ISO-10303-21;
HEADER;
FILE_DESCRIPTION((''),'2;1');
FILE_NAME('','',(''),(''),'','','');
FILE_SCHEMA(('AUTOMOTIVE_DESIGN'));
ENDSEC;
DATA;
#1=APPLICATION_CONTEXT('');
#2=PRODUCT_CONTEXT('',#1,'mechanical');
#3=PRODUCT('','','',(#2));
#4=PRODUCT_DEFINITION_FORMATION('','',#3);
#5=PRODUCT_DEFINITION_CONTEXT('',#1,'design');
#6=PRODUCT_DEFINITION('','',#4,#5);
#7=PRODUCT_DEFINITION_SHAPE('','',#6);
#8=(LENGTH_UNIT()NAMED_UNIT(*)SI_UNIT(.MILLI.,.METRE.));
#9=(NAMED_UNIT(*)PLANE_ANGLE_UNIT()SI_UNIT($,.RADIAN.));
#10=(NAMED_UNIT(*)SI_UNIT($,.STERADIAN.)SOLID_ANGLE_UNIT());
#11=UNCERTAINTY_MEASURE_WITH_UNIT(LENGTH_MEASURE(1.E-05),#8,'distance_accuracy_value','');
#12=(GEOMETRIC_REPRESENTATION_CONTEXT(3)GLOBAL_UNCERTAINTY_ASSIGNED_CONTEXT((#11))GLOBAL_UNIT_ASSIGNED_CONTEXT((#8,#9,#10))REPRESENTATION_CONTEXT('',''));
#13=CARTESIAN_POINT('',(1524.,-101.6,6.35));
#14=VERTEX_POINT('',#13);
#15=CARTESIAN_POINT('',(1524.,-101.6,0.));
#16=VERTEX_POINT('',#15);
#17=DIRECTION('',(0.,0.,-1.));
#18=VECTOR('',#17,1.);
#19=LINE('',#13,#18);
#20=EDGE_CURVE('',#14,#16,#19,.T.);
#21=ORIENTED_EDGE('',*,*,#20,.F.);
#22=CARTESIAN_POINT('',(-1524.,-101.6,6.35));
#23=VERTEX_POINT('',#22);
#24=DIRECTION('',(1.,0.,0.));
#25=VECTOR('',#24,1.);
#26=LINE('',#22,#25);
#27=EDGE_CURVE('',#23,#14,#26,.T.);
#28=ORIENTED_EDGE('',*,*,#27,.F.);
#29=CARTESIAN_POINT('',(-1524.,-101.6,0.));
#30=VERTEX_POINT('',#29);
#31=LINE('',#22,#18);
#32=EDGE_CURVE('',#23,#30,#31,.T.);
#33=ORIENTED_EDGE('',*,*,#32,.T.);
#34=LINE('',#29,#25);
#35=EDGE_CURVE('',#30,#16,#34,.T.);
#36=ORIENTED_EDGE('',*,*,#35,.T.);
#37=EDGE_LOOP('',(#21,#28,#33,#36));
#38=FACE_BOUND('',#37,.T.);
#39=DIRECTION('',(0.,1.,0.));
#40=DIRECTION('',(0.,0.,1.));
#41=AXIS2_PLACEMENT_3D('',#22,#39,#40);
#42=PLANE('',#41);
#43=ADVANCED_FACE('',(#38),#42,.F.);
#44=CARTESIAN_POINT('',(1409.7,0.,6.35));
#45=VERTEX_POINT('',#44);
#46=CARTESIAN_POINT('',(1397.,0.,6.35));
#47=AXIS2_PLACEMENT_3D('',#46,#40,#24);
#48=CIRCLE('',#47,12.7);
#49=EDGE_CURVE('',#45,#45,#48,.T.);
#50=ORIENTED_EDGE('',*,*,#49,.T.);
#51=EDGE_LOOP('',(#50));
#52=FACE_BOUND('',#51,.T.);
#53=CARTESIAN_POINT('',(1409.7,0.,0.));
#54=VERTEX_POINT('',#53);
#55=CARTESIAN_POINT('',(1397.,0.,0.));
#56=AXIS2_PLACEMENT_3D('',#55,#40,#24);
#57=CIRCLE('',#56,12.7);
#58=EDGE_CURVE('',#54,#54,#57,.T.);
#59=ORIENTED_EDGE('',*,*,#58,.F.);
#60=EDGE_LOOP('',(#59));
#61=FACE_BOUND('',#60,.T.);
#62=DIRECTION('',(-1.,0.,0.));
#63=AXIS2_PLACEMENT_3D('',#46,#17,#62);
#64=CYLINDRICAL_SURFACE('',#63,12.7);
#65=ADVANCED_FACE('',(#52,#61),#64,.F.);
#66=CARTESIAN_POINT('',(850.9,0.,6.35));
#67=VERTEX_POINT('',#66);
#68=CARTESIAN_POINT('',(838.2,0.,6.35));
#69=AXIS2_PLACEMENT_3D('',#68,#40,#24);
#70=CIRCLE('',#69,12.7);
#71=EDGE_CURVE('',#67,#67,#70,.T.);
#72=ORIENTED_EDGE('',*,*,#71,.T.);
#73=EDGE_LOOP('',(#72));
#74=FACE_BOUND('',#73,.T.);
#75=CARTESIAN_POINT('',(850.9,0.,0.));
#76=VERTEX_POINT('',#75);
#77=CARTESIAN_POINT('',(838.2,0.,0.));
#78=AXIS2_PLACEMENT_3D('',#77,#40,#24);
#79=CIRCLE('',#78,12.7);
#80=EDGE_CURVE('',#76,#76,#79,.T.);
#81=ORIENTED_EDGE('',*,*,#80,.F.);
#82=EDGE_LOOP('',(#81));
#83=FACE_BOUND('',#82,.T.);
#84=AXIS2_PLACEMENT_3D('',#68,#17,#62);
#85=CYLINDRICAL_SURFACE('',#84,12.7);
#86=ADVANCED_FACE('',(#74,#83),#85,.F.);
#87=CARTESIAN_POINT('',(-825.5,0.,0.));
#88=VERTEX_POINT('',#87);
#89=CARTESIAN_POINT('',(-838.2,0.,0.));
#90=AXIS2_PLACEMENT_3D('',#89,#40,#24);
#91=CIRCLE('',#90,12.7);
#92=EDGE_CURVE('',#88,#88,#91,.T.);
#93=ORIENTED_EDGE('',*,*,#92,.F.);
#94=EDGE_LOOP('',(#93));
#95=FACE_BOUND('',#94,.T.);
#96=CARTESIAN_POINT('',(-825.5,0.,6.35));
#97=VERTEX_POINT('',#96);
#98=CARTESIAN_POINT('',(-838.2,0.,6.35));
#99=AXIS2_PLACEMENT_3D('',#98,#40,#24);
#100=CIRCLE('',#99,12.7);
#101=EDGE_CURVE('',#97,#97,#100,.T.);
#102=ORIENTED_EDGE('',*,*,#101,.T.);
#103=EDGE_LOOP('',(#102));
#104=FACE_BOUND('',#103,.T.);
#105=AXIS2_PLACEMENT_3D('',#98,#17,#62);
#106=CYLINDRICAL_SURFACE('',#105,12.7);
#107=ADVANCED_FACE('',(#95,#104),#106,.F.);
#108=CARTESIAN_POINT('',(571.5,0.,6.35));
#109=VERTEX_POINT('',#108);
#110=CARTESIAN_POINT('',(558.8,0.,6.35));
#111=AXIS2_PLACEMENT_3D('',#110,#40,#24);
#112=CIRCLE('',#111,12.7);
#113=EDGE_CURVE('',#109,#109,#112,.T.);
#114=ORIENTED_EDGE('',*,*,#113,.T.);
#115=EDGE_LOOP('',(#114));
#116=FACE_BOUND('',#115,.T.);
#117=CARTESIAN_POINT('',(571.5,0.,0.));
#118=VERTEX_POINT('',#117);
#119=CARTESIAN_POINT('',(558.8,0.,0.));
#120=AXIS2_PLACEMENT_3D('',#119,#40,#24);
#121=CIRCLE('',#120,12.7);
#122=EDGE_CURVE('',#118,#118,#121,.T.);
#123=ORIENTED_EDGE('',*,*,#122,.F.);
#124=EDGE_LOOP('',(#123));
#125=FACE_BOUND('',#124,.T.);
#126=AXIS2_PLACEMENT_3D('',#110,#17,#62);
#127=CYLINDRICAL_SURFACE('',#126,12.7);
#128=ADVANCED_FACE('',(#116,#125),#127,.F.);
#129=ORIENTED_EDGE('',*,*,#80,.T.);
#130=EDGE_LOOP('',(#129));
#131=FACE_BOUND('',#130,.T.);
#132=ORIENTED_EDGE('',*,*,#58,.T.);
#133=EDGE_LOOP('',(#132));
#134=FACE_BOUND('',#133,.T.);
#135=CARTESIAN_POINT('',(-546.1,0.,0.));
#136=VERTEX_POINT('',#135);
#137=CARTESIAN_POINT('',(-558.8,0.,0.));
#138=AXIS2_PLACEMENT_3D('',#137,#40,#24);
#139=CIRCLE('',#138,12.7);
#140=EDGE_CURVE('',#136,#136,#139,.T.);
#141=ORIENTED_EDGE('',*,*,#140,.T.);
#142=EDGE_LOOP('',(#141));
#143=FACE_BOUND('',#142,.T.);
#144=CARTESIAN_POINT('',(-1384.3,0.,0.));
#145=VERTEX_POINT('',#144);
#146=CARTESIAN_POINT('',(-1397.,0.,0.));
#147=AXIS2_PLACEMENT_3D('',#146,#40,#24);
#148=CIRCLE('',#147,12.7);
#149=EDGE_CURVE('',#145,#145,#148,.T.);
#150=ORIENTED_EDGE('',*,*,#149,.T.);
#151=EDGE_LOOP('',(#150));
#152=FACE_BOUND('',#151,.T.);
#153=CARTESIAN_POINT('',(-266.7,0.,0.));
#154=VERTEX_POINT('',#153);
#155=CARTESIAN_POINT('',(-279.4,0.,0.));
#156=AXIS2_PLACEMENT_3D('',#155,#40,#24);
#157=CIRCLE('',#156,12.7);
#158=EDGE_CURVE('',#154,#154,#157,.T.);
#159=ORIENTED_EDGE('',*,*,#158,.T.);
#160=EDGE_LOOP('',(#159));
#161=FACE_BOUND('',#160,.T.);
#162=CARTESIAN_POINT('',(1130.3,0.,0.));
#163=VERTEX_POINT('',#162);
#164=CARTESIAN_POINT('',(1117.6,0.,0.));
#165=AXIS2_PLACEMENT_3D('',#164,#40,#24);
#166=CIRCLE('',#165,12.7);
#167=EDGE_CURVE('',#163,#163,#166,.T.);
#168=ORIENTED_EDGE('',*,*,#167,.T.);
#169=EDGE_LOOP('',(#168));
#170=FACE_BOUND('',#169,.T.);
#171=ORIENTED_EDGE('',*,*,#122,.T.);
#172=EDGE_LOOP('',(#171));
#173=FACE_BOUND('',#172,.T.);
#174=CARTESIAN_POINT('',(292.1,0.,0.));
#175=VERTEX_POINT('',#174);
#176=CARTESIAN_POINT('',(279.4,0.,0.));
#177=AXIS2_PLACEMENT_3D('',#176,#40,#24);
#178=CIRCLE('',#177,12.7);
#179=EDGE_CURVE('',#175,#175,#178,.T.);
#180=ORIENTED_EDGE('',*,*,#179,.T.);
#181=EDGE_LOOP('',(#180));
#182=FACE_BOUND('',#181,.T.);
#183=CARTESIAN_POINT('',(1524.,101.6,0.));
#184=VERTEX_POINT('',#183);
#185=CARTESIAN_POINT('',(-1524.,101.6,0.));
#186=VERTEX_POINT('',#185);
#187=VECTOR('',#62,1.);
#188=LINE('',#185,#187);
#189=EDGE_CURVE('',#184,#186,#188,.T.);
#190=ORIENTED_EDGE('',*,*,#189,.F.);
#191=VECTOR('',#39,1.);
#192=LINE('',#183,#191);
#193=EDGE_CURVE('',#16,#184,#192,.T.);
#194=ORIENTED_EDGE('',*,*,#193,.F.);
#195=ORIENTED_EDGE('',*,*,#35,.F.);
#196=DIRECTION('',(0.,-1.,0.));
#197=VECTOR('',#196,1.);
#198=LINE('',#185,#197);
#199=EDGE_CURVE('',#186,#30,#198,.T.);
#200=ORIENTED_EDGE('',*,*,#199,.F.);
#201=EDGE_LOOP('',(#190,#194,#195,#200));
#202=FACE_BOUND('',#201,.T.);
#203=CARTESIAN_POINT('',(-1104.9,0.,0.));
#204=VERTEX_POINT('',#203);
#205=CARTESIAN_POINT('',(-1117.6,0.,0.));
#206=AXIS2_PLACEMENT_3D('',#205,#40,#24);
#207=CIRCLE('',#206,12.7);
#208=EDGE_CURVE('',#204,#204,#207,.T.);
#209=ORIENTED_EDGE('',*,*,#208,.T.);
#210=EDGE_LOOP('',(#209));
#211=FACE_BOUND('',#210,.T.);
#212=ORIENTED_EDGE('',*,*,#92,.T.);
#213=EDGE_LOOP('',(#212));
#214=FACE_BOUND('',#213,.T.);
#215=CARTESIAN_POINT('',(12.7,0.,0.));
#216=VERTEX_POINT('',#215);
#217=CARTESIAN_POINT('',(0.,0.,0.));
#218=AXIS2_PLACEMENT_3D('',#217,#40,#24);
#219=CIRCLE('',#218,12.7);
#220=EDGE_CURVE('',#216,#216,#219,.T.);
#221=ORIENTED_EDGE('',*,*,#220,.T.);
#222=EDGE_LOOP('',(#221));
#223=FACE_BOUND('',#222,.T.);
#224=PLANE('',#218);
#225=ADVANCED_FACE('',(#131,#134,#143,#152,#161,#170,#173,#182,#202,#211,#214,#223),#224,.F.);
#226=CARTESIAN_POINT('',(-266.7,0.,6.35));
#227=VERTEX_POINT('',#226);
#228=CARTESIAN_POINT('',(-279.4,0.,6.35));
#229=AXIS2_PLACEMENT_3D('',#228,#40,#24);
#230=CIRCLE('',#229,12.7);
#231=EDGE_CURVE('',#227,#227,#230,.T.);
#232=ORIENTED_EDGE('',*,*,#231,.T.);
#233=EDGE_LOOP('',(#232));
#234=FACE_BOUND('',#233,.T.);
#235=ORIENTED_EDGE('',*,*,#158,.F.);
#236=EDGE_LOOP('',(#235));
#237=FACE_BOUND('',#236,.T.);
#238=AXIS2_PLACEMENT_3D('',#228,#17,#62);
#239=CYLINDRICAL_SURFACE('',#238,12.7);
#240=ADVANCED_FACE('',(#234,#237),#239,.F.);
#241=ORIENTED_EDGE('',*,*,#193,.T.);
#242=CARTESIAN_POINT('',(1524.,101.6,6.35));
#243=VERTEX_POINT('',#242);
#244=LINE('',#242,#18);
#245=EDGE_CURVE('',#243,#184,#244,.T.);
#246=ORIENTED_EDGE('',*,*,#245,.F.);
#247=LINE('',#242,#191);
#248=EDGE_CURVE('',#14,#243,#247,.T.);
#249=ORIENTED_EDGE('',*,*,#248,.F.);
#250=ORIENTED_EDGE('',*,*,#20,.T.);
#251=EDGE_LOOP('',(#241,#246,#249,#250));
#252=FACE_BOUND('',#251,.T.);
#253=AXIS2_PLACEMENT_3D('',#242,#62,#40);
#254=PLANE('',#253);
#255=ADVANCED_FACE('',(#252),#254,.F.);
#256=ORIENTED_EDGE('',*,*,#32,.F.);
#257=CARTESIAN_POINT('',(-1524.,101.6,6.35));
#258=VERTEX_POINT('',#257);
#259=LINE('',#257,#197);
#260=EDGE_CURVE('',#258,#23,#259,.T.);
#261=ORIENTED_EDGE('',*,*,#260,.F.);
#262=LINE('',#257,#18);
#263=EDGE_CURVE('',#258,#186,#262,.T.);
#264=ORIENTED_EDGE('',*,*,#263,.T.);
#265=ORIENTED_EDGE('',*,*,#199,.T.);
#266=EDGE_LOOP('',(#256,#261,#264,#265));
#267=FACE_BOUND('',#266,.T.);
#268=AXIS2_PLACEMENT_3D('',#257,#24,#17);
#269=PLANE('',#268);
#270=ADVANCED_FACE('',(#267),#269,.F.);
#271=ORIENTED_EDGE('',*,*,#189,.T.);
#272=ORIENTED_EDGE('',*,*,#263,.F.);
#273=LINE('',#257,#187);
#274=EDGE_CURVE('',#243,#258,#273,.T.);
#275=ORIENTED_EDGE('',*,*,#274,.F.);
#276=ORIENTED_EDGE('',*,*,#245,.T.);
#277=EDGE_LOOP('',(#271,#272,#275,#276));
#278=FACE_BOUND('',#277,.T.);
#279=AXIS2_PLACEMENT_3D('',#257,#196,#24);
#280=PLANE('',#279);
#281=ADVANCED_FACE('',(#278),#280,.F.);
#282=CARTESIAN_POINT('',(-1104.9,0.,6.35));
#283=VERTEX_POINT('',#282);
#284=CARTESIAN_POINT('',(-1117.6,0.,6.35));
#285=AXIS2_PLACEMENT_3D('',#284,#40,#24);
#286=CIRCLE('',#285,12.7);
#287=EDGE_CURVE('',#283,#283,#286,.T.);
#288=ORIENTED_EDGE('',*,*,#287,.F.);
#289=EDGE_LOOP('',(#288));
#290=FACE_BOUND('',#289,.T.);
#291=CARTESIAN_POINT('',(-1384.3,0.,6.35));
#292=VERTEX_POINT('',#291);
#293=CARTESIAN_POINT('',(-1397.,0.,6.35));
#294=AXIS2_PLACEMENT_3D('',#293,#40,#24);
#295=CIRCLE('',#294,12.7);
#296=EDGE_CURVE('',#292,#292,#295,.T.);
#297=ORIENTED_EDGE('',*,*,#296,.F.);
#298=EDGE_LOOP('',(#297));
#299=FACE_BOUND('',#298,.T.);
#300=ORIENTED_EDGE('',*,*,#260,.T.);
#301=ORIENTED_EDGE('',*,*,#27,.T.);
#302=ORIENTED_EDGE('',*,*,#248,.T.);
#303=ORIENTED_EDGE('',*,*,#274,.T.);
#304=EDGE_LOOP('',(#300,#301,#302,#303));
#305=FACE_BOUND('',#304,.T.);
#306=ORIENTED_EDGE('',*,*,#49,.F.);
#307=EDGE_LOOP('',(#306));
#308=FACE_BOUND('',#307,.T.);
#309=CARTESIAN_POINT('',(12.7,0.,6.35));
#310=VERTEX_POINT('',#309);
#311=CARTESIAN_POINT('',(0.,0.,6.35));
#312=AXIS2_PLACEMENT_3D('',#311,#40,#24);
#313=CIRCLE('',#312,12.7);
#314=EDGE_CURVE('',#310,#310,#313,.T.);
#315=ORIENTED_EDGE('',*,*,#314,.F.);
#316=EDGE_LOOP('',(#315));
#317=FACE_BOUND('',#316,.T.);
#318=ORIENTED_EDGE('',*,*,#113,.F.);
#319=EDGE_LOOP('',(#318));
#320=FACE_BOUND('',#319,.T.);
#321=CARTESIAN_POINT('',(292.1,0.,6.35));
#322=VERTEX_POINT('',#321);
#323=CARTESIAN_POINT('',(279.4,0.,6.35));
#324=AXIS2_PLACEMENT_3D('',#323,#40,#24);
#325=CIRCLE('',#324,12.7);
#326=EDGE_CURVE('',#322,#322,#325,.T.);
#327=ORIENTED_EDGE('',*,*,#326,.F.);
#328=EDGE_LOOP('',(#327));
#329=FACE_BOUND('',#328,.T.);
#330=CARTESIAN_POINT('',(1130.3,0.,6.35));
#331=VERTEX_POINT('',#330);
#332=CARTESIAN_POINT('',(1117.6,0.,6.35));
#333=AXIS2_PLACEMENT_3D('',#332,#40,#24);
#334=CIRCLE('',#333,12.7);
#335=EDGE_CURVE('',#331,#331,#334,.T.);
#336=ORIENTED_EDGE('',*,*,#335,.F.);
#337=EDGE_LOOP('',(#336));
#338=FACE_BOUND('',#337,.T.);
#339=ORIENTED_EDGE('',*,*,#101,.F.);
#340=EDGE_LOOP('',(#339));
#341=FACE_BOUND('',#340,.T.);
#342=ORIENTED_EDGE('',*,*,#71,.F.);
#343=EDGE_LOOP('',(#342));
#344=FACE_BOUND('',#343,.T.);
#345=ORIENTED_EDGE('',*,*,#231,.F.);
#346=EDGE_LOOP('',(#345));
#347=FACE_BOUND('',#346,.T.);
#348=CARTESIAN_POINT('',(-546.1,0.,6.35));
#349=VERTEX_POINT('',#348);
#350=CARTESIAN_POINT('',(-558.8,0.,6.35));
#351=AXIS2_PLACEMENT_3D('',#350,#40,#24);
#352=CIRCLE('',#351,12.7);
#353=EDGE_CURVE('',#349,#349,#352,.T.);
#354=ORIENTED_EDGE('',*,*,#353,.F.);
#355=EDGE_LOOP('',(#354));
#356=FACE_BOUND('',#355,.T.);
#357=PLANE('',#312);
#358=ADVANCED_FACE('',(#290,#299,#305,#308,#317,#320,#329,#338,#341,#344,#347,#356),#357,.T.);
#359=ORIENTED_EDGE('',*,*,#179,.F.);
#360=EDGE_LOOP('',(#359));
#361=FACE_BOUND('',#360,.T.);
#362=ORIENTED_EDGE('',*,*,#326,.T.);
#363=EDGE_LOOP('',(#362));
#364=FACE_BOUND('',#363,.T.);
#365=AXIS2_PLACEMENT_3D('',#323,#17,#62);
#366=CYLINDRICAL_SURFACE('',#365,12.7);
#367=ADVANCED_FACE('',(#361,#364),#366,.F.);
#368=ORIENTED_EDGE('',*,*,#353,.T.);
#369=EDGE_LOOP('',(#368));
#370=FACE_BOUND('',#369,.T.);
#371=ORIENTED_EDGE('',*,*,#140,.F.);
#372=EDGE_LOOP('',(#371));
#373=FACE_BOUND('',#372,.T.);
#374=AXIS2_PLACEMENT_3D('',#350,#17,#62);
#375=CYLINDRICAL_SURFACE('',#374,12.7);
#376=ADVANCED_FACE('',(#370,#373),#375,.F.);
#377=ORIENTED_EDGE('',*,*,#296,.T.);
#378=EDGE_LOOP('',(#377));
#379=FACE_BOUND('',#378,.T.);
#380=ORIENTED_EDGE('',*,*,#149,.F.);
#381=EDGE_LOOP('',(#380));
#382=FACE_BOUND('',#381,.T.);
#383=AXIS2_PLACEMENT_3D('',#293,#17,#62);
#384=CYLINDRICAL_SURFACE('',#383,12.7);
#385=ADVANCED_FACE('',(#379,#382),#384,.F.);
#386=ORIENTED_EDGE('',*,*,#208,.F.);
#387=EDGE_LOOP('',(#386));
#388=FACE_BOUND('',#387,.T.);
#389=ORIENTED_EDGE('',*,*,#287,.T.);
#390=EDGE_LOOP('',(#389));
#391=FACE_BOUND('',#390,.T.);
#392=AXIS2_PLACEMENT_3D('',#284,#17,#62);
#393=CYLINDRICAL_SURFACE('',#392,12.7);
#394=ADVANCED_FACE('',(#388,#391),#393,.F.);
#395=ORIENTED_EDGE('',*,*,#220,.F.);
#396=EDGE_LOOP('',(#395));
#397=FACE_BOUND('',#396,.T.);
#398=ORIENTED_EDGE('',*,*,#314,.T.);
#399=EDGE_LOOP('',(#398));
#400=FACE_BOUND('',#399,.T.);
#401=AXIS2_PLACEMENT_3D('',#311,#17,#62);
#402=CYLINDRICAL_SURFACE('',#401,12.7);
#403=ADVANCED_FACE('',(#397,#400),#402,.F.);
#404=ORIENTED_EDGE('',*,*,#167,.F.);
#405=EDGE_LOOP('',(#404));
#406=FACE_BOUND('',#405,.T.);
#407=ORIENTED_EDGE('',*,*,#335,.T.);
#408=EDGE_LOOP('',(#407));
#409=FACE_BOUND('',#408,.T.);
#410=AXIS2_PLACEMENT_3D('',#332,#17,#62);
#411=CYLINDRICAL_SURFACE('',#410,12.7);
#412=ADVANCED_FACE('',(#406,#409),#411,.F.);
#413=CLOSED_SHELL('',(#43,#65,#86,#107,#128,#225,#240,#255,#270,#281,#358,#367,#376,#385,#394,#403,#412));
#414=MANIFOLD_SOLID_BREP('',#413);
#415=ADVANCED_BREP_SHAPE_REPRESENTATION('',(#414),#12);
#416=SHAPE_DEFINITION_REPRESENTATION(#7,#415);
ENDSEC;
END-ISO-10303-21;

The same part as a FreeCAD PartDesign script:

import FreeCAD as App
import Part
import Sketcher
Q = App.Units.Quantity

doc = App.newDocument("Part")
body = doc.addObject("PartDesign::Body", "Body")

# Sketch on XY plane
sketch1 = body.newObject("Sketcher::SketchObject", "Sketch")
sketch1.AttachmentSupport = (doc.getObject("XY_Plane"), [""])
sketch1.MapMode = "FlatFace"
sketch1.addGeometry([
    Part.LineSegment(App.Vector(-1524, 102, 0), App.Vector(-1524, -102, 0)),  # 0
    Part.LineSegment(App.Vector(-1524, -102, 0), App.Vector(1524, -102, 0)),  # 1
    Part.LineSegment(App.Vector(1524, -102, 0), App.Vector(1524, 102, 0)),  # 2
    Part.LineSegment(App.Vector(1524, 102, 0), App.Vector(-1524, 102, 0)),  # 3
    Part.Circle(App.Vector(-1397, 0, 0), App.Vector(0, 0, 1), 13),  # 4
    Part.Circle(App.Vector(-1118, 0, 0), App.Vector(0, 0, 1), 13),  # 5
    Part.Circle(App.Vector(-838, 0, 0), App.Vector(0, 0, 1), 13),  # 6
    Part.Circle(App.Vector(-559, 0, 0), App.Vector(0, 0, 1), 13),  # 7
    Part.Circle(App.Vector(-279, 0, 0), App.Vector(0, 0, 1), 13),  # 8
    Part.Circle(App.Vector(0, 0, 0), App.Vector(0, 0, 1), 13),  # 9
    Part.Circle(App.Vector(279, 0, 0), App.Vector(0, 0, 1), 13),  # 10
    Part.Circle(App.Vector(559, 0, 0), App.Vector(0, 0, 1), 13),  # 11
    Part.Circle(App.Vector(838, 0, 0), App.Vector(0, 0, 1), 13),  # 12
    Part.Circle(App.Vector(1118, 0, 0), App.Vector(0, 0, 1), 13),  # 13
    Part.Circle(App.Vector(1397, 0, 0), App.Vector(0, 0, 1), 13),  # 14
], False)
sketch1.addConstraint([
    Sketcher.Constraint("Coincident", 0, 2, 1, 1),
    Sketcher.Constraint("Coincident", 1, 2, 2, 1),
    Sketcher.Constraint("Coincident", 2, 2, 3, 1),
    Sketcher.Constraint("Coincident", 3, 2, 0, 1),
    Sketcher.Constraint("Vertical", 0),
    Sketcher.Constraint("Horizontal", 1),
    Sketcher.Constraint("Vertical", 2),
    Sketcher.Constraint("Horizontal", 3),
    Sketcher.Constraint("Coincident", 9, 3, -1, 1),
    Sketcher.Constraint("Equal", 4, 5),
    Sketcher.Constraint("Equal", 5, 6),
    Sketcher.Constraint("Equal", 6, 7),
    Sketcher.Constraint("Equal", 7, 8),
    Sketcher.Constraint("Equal", 8, 9),
    Sketcher.Constraint("Equal", 9, 10),
    Sketcher.Constraint("Equal", 10, 11),
    Sketcher.Constraint("Equal", 11, 12),
    Sketcher.Constraint("Equal", 12, 13),
    Sketcher.Constraint("Equal", 13, 14),
    Sketcher.Constraint("Symmetric", 8, 3, 10, 3, -1, 1),
    Sketcher.Constraint("Symmetric", 7, 3, 11, 3, -1, 1),
    Sketcher.Constraint("Symmetric", 6, 3, 12, 3, -1, 1),
    Sketcher.Constraint("Symmetric", 5, 3, 13, 3, -1, 1),
    Sketcher.Constraint("Symmetric", 4, 3, 14, 3, -1, 1),
    Sketcher.Constraint("Symmetric", 0, 2, 2, 2, -1, 1),
    Sketcher.Constraint("PointOnObject", 4, 3, -1),
    Sketcher.Constraint("PointOnObject", 5, 3, -1),
    Sketcher.Constraint("PointOnObject", 6, 3, -1),
    Sketcher.Constraint("PointOnObject", 7, 3, -1),
    Sketcher.Constraint("PointOnObject", 8, 3, -1),
    Sketcher.Constraint("Diameter", 4, Q("1 in")),
    Sketcher.Constraint("DistanceX", 1, 1, 1, 2, Q("120 in")),
    Sketcher.Constraint("DistanceY", 0, 2, 0, 1, Q("8 in")),
    Sketcher.Constraint("DistanceX", 4, 3, -1, 1, Q("55 in")),
    Sketcher.Constraint("DistanceX", 5, 3, -1, 1, Q("44 in")),
    Sketcher.Constraint("DistanceX", 6, 3, -1, 1, Q("33 in")),
    Sketcher.Constraint("DistanceX", 7, 3, -1, 1, Q("22 in")),
    Sketcher.Constraint("DistanceX", 8, 3, -1, 1, Q("11 in")),
])
pad1 = body.newObject("PartDesign::Pad", "Pad")
pad1.Profile = sketch1
pad1.Length = Q("0.25 in")

doc.recompute()
